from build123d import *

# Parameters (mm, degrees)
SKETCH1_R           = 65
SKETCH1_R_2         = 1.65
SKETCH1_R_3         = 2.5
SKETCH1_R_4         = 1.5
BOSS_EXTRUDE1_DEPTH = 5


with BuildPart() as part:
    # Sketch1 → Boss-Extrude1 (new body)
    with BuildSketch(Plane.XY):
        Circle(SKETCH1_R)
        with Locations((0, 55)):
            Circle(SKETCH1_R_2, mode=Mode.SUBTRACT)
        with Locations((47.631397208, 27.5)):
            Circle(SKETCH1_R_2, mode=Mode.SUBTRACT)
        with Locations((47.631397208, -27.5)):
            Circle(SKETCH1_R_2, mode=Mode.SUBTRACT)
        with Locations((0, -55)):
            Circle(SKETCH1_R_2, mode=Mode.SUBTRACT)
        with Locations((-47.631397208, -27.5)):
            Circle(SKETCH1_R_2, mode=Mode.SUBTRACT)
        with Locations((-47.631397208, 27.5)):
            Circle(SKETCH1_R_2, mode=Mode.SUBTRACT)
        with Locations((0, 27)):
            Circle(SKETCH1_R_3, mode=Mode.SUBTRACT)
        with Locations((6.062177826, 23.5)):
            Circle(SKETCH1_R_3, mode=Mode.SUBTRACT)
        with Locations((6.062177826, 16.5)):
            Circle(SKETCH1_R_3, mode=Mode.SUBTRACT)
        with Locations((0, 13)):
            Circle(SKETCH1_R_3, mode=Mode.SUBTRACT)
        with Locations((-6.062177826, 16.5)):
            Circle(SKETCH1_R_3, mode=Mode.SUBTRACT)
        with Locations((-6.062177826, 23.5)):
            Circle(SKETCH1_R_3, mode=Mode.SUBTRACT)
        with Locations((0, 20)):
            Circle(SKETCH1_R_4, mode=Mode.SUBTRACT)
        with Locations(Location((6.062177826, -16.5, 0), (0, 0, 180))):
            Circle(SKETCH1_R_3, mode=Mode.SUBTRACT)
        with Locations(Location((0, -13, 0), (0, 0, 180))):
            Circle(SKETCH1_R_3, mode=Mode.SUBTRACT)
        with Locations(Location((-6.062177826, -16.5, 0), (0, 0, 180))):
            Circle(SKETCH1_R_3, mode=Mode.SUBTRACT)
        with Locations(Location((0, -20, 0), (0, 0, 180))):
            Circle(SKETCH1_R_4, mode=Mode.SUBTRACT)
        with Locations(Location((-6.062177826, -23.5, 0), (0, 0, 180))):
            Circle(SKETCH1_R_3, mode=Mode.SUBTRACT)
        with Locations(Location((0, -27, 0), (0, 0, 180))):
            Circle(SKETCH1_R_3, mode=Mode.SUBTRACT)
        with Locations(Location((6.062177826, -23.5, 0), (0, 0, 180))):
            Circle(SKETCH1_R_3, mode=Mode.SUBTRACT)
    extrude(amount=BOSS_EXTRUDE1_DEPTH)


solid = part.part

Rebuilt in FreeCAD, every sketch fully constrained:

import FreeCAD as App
import Part
import Sketcher

doc = App.newDocument("Part")
body = doc.addObject("PartDesign::Body", "Body")

# Sketch on XY plane
sketch1 = body.newObject("Sketcher::SketchObject", "Sketch")
sketch1.AttachmentSupport = (doc.getObject("XY_Plane"), [""])
sketch1.MapMode = "FlatFace"
sketch1.addGeometry([
    Part.Circle(App.Vector(0, 0, 0), App.Vector(0, 0, 1), 65),  # 0
    Part.Circle(App.Vector(-47.6, -27.5, 0), App.Vector(0, 0, 1), 1.6),  # 1
    Part.Circle(App.Vector(-6.1, -23.5, 0), App.Vector(0, 0, 1), 2.5),  # 2
    Part.Circle(App.Vector(-6.1, -16.5, 0), App.Vector(0, 0, 1), 2.5),  # 3
    Part.Circle(App.Vector(0, -55, 0), App.Vector(0, 0, 1), 1.6),  # 4
    Part.Circle(App.Vector(0, -27, 0), App.Vector(0, 0, 1), 2.5),  # 5
    Part.Circle(App.Vector(6.1, -23.5, 0), App.Vector(0, 0, 1), 2.5),  # 6
    Part.Circle(App.Vector(0, -20, 0), App.Vector(0, 0, 1), 1.5),  # 7
    Part.Circle(App.Vector(6.1, -16.5, 0), App.Vector(0, 0, 1), 2.5),  # 8
    Part.Circle(App.Vector(0, -13, 0), App.Vector(0, 0, 1), 2.5),  # 9
    Part.Circle(App.Vector(47.6, -27.5, 0), App.Vector(0, 0, 1), 1.6),  # 10
    Part.Circle(App.Vector(-47.6, 27.5, 0), App.Vector(0, 0, 1), 1.6),  # 11
    Part.Circle(App.Vector(-6.1, 16.5, 0), App.Vector(0, 0, 1), 2.5),  # 12
    Part.Circle(App.Vector(-6.1, 23.5, 0), App.Vector(0, 0, 1), 2.5),  # 13
    Part.Circle(App.Vector(0, 13, 0), App.Vector(0, 0, 1), 2.5),  # 14
    Part.Circle(App.Vector(6.1, 16.5, 0), App.Vector(0, 0, 1), 2.5),  # 15
    Part.Circle(App.Vector(0, 20, 0), App.Vector(0, 0, 1), 1.5),  # 16
    Part.Circle(App.Vector(6.1, 23.5, 0), App.Vector(0, 0, 1), 2.5),  # 17
    Part.Circle(App.Vector(0, 27, 0), App.Vector(0, 0, 1), 2.5),  # 18
    Part.Circle(App.Vector(47.6, 27.5, 0), App.Vector(0, 0, 1), 1.6),  # 19
    Part.Circle(App.Vector(0, 55, 0), App.Vector(0, 0, 1), 1.6),  # 20
], False)
sketch1.addConstraint([
    Sketcher.Constraint("Coincident", 0, 3, -1, 1),
    Sketcher.Constraint("Equal", 2, 3),
    Sketcher.Constraint("Equal", 1, 4),
    Sketcher.Constraint("Equal", 3, 5),
    Sketcher.Constraint("Equal", 5, 6),
    Sketcher.Constraint("Equal", 6, 8),
    Sketcher.Constraint("Equal", 8, 9),
    Sketcher.Constraint("Equal", 4, 10),
    Sketcher.Constraint("Equal", 10, 11),
    Sketcher.Constraint("Equal", 9, 12),
    Sketcher.Constraint("Equal", 12, 13),
    Sketcher.Constraint("Equal", 13, 14),
    Sketcher.Constraint("Equal", 14, 15),
    Sketcher.Constraint("Equal", 7, 16),
    Sketcher.Constraint("Equal", 15, 17),
    Sketcher.Constraint("Equal", 17, 18),
    Sketcher.Constraint("Equal", 11, 19),
    Sketcher.Constraint("Equal", 19, 20),
    Sketcher.Constraint("Symmetric", 10, 3, 11, 3, -1, 1),
    Sketcher.Constraint("Symmetric", 8, 3, 12, 3, -1, 1),
    Sketcher.Constraint("Symmetric", 6, 3, 13, 3, -1, 1),
    Sketcher.Constraint("Symmetric", 9, 3, 14, 3, -1, 1),
    Sketcher.Constraint("Symmetric", 3, 3, 15, 3, -1, 1),
    Sketcher.Constraint("Symmetric", 7, 3, 16, 3, -1, 1),
    Sketcher.Constraint("Symmetric", 2, 3, 17, 3, -1, 1),
    Sketcher.Constraint("Symmetric", 5, 3, 18, 3, -1, 1),
    Sketcher.Constraint("Symmetric", 1, 3, 19, 3, -1, 1),
    Sketcher.Constraint("Symmetric", 4, 3, 20, 3, -1, 1),
    Sketcher.Constraint("Symmetric", 2, 3, 6, 3, -2),
    Sketcher.Constraint("Symmetric", 3, 3, 8, 3, -2),
    Sketcher.Constraint("Symmetric", 1, 3, 10, 3, -2),
    Sketcher.Constraint("PointOnObject", 4, 3, -2),
    Sketcher.Constraint("PointOnObject", 5, 3, -2),
    Sketcher.Constraint("PointOnObject", 7, 3, -2),
    Sketcher.Constraint("PointOnObject", 9, 3, -2),
    Sketcher.Constraint("Vertical", 2, 3, 3, 3),
    Sketcher.Constraint("Diameter", 0, 130.0),
    Sketcher.Constraint("Diameter", 2, 5.0),
    Sketcher.Constraint("Diameter", 7, 3.0),
    Sketcher.Constraint("Diameter", 1, 3.3),
    Sketcher.Constraint("DistanceY", 4, 3, -1, 1, 55.0),
    Sketcher.Constraint("DistanceY", 5, 3, -1, 1, 27.0),
    Sketcher.Constraint("DistanceY", 7, 3, -1, 1, 20.0),
    Sketcher.Constraint("DistanceY", 9, 3, -1, 1, 13.0),
    Sketcher.Constraint("DistanceY", 1, 3, 2, 3, 4.0),
    Sketcher.Constraint("DistanceY", 2, 3, 3, 3, 7.0),
    Sketcher.Constraint("DistanceY", 1, 3, 11, 3, 55.0),
    Sketcher.Constraint("DistanceX", 1, 3, 2, 3, 41.569219),
    Sketcher.Constraint("DistanceX", 1, 3, -1, 1, 47.631397),
])
pad1 = body.newObject("PartDesign::Pad", "Pad")
pad1.Profile = sketch1
pad1.Length = 5

doc.recompute()
